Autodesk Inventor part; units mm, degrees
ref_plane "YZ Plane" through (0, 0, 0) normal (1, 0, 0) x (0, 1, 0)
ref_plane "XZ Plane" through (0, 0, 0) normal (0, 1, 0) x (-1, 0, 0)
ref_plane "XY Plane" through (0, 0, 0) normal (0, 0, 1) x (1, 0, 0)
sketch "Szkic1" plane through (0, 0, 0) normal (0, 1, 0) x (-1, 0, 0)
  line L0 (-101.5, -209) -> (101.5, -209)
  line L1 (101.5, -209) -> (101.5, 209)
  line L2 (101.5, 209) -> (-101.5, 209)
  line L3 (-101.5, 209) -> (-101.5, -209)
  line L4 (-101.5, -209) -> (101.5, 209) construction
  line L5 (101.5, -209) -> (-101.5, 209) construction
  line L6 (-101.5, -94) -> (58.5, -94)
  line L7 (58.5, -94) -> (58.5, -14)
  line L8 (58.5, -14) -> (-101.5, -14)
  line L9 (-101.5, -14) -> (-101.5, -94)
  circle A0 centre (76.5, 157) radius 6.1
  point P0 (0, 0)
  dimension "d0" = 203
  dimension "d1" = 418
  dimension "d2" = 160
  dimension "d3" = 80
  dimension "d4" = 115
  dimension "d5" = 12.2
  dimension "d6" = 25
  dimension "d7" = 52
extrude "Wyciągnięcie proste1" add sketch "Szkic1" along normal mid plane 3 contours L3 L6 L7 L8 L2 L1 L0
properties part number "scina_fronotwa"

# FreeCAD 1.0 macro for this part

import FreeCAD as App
import Part
import Sketcher
Q = App.Units.Quantity

doc = App.newDocument("Part")
body = doc.addObject("PartDesign::Body", "Body")

# Sketch on XZ plane
sketch1 = body.newObject("Sketcher::SketchObject", "Sketch")
sketch1.AttachmentSupport = (doc.getObject("XZ_Plane"), [""])
sketch1.MapMode = "FlatFace"
sketch1.addGeometry(Part.LineSegment(App.Vector(102, -94, 0), App.Vector(102, -209, 0)), False)
sketch1.addGeometry(Part.LineSegment(App.Vector(102, -209, 0), App.Vector(-102, -209, 0)), False)
sketch1.addGeometry(Part.LineSegment(App.Vector(-102, -209, 0), App.Vector(-102, 209, 0)), False)
sketch1.addGeometry(Part.LineSegment(App.Vector(-102, 209, 0), App.Vector(102, 209, 0)), False)
sketch1.addGeometry(Part.LineSegment(App.Vector(102, 209, 0), App.Vector(102, -14, 0)), False)
sketch1.addGeometry(Part.LineSegment(App.Vector(102, -14, 0), App.Vector(-58, -14, 0)), False)
sketch1.addGeometry(Part.LineSegment(App.Vector(-58, -14, 0), App.Vector(-58, -94, 0)), False)
sketch1.addGeometry(Part.LineSegment(App.Vector(-58, -94, 0), App.Vector(102, -94, 0)), False)
sketch1.addGeometry(Part.Circle(App.Vector(-76, 157, 0), App.Vector(0, 0, 1), 6), False)
sketch1.addConstraint(Sketcher.Constraint("Coincident", 0, 2, 1, 1))
sketch1.addConstraint(Sketcher.Constraint("Coincident", 1, 2, 2, 1))
sketch1.addConstraint(Sketcher.Constraint("Coincident", 2, 2, 3, 1))
sketch1.addConstraint(Sketcher.Constraint("Coincident", 3, 2, 4, 1))
sketch1.addConstraint(Sketcher.Constraint("Coincident", 4, 2, 5, 1))
sketch1.addConstraint(Sketcher.Constraint("Coincident", 5, 2, 6, 1))
sketch1.addConstraint(Sketcher.Constraint("Coincident", 6, 2, 7, 1))
sketch1.addConstraint(Sketcher.Constraint("Coincident", 7, 2, 0, 1))
sketch1.addConstraint(Sketcher.Constraint("Vertical", 0))
sketch1.addConstraint(Sketcher.Constraint("Horizontal", 1))
sketch1.addConstraint(Sketcher.Constraint("Vertical", 2))
sketch1.addConstraint(Sketcher.Constraint("Horizontal", 3))
sketch1.addConstraint(Sketcher.Constraint("Vertical", 4))
sketch1.addConstraint(Sketcher.Constraint("Horizontal", 5))
sketch1.addConstraint(Sketcher.Constraint("Vertical", 6))
sketch1.addConstraint(Sketcher.Constraint("Horizontal", 7))
sketch1.addConstraint(Sketcher.Constraint("Symmetric", 0, 2, 2, 2, -1, 1))
sketch1.addConstraint(Sketcher.Constraint("Vertical", 0, 2, 3, 2))
sketch1.addConstraint(Sketcher.Constraint("Diameter", 8, Q("12.2 mm")))
sketch1.addConstraint(Sketcher.Constraint("DistanceX", 1, 2, 1, 1, Q("203 mm")))
sketch1.addConstraint(Sketcher.Constraint("DistanceX", 5, 2, 5, 1, Q("160 mm")))
sketch1.addConstraint(Sketcher.Constraint("DistanceY", 0, 2, 0, 1, Q("115 mm")))
sketch1.addConstraint(Sketcher.Constraint("DistanceY", 2, 1, 2, 2, Q("418 mm")))
sketch1.addConstraint(Sketcher.Constraint("DistanceY", 6, 2, 6, 1, Q("80 mm")))
sketch1.addConstraint(Sketcher.Constraint("DistanceX", 1, 2, 8, 3, Q("25 mm")))
sketch1.addConstraint(Sketcher.Constraint("DistanceY", 8, 3, 2, 2, Q("52 mm")))
pad1 = body.newObject("PartDesign::Pad", "Pad")
pad1.Profile = sketch1
pad1.Length = 3
pad1.Midplane = True

doc.recompute()
